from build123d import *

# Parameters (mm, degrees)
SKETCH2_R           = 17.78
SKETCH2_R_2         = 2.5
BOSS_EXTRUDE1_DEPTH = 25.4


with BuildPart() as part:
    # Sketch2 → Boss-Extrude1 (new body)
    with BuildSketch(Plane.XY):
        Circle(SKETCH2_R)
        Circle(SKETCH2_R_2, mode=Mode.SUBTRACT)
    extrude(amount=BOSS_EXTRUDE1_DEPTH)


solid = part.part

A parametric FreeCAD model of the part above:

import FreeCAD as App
import Part
import Sketcher

V = App.Vector
Q = App.Units.Quantity

doc = App.newDocument("Part")
params = doc.addObject("Spreadsheet::Sheet", "Params")
for row, (alias, value) in enumerate([
    ("sketch1_diameter", "1.4 in"),
    ("pad1_length", "1 in"),
], start=1):
    params.set(f"A{row}", alias)
    params.set(f"B{row}", "=" + value)
    params.setAlias(f"B{row}", alias)

body = doc.addObject("PartDesign::Body", "Body")

sketch1 = body.newObject("Sketcher::SketchObject", "Sketch")
sketch1.AttachmentSupport = (doc.getObject("XY_Plane"), [""])
sketch1.MapMode = "FlatFace"
sketch1.addGeometry([
    Part.Circle(V(0, 0, 0), V(0, 0, 1), 17.8),
    Part.Circle(V(0, 0, 0), V(0, 0, 1), 2.5),
], False)
sketch1.addConstraint([
    Sketcher.Constraint("Coincident", 0, 3, -1, 1),
    Sketcher.Constraint("Coincident", 1, 3, -1, 1),
    Sketcher.Constraint("Diameter", 0, Q("1.4 in")),
    Sketcher.Constraint("Diameter", 1, Q("5 mm")),
])
sketch1.setExpression("Constraints[2]", "Params.sketch1_diameter")
pad1 = body.newObject("PartDesign::Pad", "Pad")
pad1.Profile = sketch1
pad1.setExpression("Length", "Params.pad1_length")

doc.recompute()
